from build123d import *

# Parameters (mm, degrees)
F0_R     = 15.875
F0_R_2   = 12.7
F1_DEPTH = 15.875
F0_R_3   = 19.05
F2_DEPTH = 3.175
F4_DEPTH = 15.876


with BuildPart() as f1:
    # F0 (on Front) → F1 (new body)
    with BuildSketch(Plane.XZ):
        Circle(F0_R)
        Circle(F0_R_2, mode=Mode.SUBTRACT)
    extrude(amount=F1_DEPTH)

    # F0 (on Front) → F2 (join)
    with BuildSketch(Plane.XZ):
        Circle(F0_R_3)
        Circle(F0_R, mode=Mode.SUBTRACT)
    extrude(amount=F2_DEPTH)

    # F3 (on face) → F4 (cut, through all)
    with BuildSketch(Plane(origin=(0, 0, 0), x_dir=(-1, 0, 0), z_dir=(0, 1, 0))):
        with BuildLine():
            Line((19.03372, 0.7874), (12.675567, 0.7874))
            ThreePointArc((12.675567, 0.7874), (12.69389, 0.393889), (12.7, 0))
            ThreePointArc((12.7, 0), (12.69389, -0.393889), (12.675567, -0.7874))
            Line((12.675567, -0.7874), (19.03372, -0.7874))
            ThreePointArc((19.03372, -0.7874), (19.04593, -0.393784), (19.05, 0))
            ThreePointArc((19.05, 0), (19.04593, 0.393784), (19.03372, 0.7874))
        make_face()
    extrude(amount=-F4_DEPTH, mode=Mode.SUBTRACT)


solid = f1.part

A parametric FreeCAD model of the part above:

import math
import FreeCAD as App
import Part
import Sketcher
Q = App.Units.Quantity

doc = App.newDocument("Part")
body = doc.addObject("PartDesign::Body", "Body")

sketch1 = doc.addObject("Sketcher::SketchObject", "Sketch")
body.addObject(sketch1)
sketch1.AttachmentSupport = (doc.XZ_Plane, [""])
sketch1.MapMode = "FlatFace"
sketch1.addGeometry([
    Part.Circle(App.Vector(0, 0, 0), App.Vector(0, 0, 1), 16),
    Part.Circle(App.Vector(0, 0, 0), App.Vector(0, 0, 1), 13),
], False)
sketch1.addConstraint([
    Sketcher.Constraint("Coincident", 0, 3, -1, 1),
    Sketcher.Constraint("Coincident", 1, 3, -1, 1),
    Sketcher.Constraint("Diameter", 1, Q("1 in")),
    Sketcher.Constraint("Diameter", 0, Q("1.25 in")),
])
pad1 = doc.addObject("PartDesign::Pad", "Pad")
body.addObject(pad1)
pad1.Profile = sketch1
pad1.Length = Q("0.625 in")

sketch2 = doc.addObject("Sketcher::SketchObject", "Sketch001")
body.addObject(sketch2)
sketch2.AttachmentSupport = (doc.XZ_Plane, [""])
sketch2.MapMode = "FlatFace"
sketch2.addGeometry([
    Part.Circle(App.Vector(0, 0, 0), App.Vector(0, 0, 1), 19),
    Part.Circle(App.Vector(0, 0, 0), App.Vector(0, 0, 1), 16),
], False)
sketch2.addConstraint([
    Sketcher.Constraint("Coincident", 0, 3, -1, 1),
    Sketcher.Constraint("Coincident", 1, 3, -1, 1),
    Sketcher.Constraint("Diameter", 0, Q("1.5 in")),
    Sketcher.Constraint("Diameter", 1, Q("1.25 in")),
])
pad2 = doc.addObject("PartDesign::Pad", "Pad001")
body.addObject(pad2)
pad2.Profile = sketch2
pad2.Length = Q("0.125 in")

sketch3 = doc.addObject("Sketcher::SketchObject", "Sketch002")
body.addObject(sketch3)
sketch3.AttachmentSupport = (doc.XZ_Plane, [""])
sketch3.MapMode = "FlatFace"
sketch3.addGeometry([
    Part.LineSegment(App.Vector(-19, 0.8, 0), App.Vector(-12.7, 0.8, 0)),
    Part.ArcOfCircle(Part.Circle(App.Vector(0, 0, 0), App.Vector(0, 0, 1), 12.7), math.radians(176.45), math.radians(180)),
    Part.ArcOfCircle(Part.Circle(App.Vector(0, 0, 0), App.Vector(0, 0, 1), 12.7), math.radians(-180), math.radians(-176.45)),
    Part.LineSegment(App.Vector(-12.7, -0.8, 0), App.Vector(-19, -0.8, 0)),
    Part.ArcOfCircle(Part.Circle(App.Vector(0, 0, 0), App.Vector(0, 0, 1), 19), math.radians(180), math.radians(182.37)),
    Part.ArcOfCircle(Part.Circle(App.Vector(0, 0, 0), App.Vector(0, 0, 1), 19), math.radians(177.63), math.radians(180)),
], False)
sketch3.addConstraint([
    Sketcher.Constraint("Coincident", 0, 2, 1, 1),
    Sketcher.Constraint("Coincident", 1, 2, 2, 1),
    Sketcher.Constraint("Coincident", 2, 2, 3, 1),
    Sketcher.Constraint("Coincident", 3, 2, 4, 2),
    Sketcher.Constraint("Coincident", 4, 1, 5, 2),
    Sketcher.Constraint("Coincident", 5, 1, 0, 1),
    Sketcher.Constraint("Horizontal", 0),
    Sketcher.Constraint("Horizontal", 3),
    Sketcher.Constraint("Equal", 1, 2),
    Sketcher.Constraint("Equal", 4, 5),
    Sketcher.Constraint("Symmetric", 0, 2, 2, 2, -1),
    Sketcher.Constraint("PointOnObject", 1, 2, -1),
    Sketcher.Constraint("PointOnObject", 4, 1, -1),
    Sketcher.Constraint("Vertical", 3, 2, 5, 1),
    Sketcher.Constraint("DistanceX", 1, 2, -1, 1, Q("0.5 in")),
    Sketcher.Constraint("DistanceX", 4, 1, -1, 1, Q("0.75 in")),
    Sketcher.Constraint("DistanceY", -1, 1, 0, 2, Q("0.031 in")),
    Sketcher.Constraint("Radius", 4, 19.04785),
    Sketcher.Constraint("Radius", 1, 12.700564),
    Sketcher.Constraint("DistanceX", 0, 1, 0, 2, 6.358153),
    Sketcher.Constraint("DistanceX", 3, 2, -1, 1, 19.03372),
])
pocket1 = doc.addObject("PartDesign::Pocket", "Pocket")
body.addObject(pocket1)
pocket1.Profile = sketch3
pocket1.Type = "ThroughAll"
pocket1.Reversed = True

doc.recompute()
